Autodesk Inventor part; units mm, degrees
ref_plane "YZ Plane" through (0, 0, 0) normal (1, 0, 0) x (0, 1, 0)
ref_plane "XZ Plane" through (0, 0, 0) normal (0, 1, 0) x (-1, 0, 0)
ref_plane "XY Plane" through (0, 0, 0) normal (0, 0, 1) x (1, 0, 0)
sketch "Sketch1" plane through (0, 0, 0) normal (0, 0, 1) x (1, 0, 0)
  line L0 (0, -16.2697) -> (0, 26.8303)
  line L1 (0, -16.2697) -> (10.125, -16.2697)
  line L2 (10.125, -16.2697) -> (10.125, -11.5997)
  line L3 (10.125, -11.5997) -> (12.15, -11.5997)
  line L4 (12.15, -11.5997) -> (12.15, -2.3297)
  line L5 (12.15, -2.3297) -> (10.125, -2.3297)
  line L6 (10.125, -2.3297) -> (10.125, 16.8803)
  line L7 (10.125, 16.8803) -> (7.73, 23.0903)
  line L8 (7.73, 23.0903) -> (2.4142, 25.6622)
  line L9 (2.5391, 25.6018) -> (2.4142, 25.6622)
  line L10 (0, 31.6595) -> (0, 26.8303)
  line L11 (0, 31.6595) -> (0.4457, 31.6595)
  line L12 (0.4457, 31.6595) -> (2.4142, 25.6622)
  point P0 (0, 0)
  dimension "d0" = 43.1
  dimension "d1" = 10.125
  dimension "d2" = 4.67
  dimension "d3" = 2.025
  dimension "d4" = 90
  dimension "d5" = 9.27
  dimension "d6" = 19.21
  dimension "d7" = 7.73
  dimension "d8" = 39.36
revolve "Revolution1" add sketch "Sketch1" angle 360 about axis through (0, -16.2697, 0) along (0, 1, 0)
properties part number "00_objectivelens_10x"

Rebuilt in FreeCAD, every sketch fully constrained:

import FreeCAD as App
import Part
import Sketcher

V = App.Vector
Q = App.Units.Quantity


def add_polygon(sketch, points):
    """Adds a closed chain of lines whose ends are joined by coincident constraints."""
    first, n = sketch.GeometryCount, len(points)
    for a, b in zip(points, points[1:] + points[:1]):
        sketch.addGeometry(Part.LineSegment(App.Vector(*a, 0), App.Vector(*b, 0)), False)
    for i in range(n):
        sketch.addConstraint(Sketcher.Constraint("Coincident", first + i, 2, first + (i + 1) % n, 1))

doc = App.newDocument("Part")
params = doc.addObject("Spreadsheet::Sheet", "Params")
for row, (alias, value) in enumerate([
    ("sketch1_height", "4.67 mm"),
    ("sketch1_height2", "9.27 mm"),
    ("sketch1_height3", "19.21 mm"),
    ("revolution_angle", "360 deg"),
], start=1):
    params.set(f"A{row}", alias)
    params.set(f"B{row}", "=" + value)
    params.setAlias(f"B{row}", alias)

body = doc.addObject("PartDesign::Body", "Body")

sketch1 = body.newObject("Sketcher::SketchObject", "Sketch")
sketch1.AttachmentSupport = (doc.getObject("XY_Plane"), [""])
sketch1.MapMode = "FlatFace"
add_polygon(sketch1, [(0, 31.6595), (0, -16.2697), (10.125, -16.2697), (10.125, -11.5997), (12.15, -11.5997), (12.15, -2.3297), (10.125, -2.3297), (10.125, 16.8803), (7.73, 23.0903), (2.4142, 25.6622), (0.4457, 31.6595)])
sketch1.addConstraint(Sketcher.Constraint("Vertical", 0))
sketch1.addConstraint(Sketcher.Constraint("Horizontal", 1))
sketch1.addConstraint(Sketcher.Constraint("Vertical", 2))
sketch1.addConstraint(Sketcher.Constraint("Horizontal", 3))
sketch1.addConstraint(Sketcher.Constraint("Vertical", 4))
sketch1.addConstraint(Sketcher.Constraint("Horizontal", 5))
sketch1.addConstraint(Sketcher.Constraint("Vertical", 6))
sketch1.addConstraint(Sketcher.Constraint("Horizontal", 10))
sketch1.addConstraint(Sketcher.Constraint("PointOnObject", 0, 2, -2))
sketch1.addConstraint(Sketcher.Constraint("Vertical", 2, 2, 5, 2))
sketch1.addConstraint(Sketcher.Constraint("DistanceY", 2, 1, 2, 2, Q("4.67 mm")))
sketch1.addConstraint(Sketcher.Constraint("DistanceY", 4, 1, 4, 2, Q("9.27 mm")))
sketch1.addConstraint(Sketcher.Constraint("DistanceY", 6, 1, 6, 2, Q("19.21 mm")))
sketch1.addConstraint(Sketcher.Constraint("DistanceX", 1, 1, 1, 2, Q("10.125 mm")))
sketch1.addConstraint(Sketcher.Constraint("DistanceX", 3, 1, 3, 2, Q("2.025 mm")))
sketch1.addConstraint(Sketcher.Constraint("DistanceX", -1, 1, 7, 2, Q("7.73 mm")))
sketch1.addConstraint(Sketcher.Constraint("Angle", 7, Q("111.09 deg")))
sketch1.addConstraint(Sketcher.Constraint("Distance", 9, Q("6.312 mm")))
sketch1.addConstraint(Sketcher.Constraint("DistanceX", 10, 2, 10, 1, Q("0.4457 mm")))
sketch1.addConstraint(Sketcher.Constraint("DistanceY", 0, 2, 0, 1, Q("47.9292 mm")))
sketch1.addConstraint(Sketcher.Constraint("DistanceY", 7, 2, 8, 2, Q("2.572 mm")))
sketch1.addConstraint(Sketcher.Constraint("DistanceY", 0, 2, -1, 1, Q("16.2697 mm")))
sketch1.setExpression("Constraints[21]", "Params.sketch1_height")
sketch1.setExpression("Constraints[22]", "Params.sketch1_height2")
sketch1.setExpression("Constraints[23]", "Params.sketch1_height3")
revolution = body.newObject("PartDesign::Revolution", "Revolution")
revolution.Profile = sketch1
revolution.ReferenceAxis = (sketch1, ["V_Axis"])
revolution.setExpression("Angle", "Params.revolution_angle")

doc.recompute()
